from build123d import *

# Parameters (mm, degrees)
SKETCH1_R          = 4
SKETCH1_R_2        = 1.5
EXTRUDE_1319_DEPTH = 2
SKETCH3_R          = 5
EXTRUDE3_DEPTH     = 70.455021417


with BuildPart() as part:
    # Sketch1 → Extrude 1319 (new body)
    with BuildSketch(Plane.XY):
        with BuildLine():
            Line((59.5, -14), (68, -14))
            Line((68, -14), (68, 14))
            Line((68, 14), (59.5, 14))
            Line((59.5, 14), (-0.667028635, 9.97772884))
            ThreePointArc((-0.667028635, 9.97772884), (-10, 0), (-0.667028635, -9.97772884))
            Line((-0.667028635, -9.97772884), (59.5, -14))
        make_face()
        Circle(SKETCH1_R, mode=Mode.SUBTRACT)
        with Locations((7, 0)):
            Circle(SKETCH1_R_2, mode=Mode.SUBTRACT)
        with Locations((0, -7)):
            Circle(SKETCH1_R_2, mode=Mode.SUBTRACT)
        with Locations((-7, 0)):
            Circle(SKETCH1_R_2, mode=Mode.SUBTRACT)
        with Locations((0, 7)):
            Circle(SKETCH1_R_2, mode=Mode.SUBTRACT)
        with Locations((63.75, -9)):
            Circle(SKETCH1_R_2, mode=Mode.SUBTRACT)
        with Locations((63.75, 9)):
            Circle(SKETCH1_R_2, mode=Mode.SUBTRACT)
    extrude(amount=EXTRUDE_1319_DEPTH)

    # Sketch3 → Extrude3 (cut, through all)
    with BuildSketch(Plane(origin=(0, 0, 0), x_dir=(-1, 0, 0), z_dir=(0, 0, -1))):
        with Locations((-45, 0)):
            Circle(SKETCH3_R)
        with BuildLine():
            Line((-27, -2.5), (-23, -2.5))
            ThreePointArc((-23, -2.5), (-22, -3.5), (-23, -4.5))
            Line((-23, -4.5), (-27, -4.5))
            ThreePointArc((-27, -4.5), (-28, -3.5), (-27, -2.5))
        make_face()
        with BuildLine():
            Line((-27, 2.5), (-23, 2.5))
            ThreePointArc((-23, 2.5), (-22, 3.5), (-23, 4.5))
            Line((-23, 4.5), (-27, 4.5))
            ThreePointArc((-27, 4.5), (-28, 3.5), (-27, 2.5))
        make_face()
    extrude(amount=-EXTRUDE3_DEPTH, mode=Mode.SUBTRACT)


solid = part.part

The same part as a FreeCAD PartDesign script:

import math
import FreeCAD as App
import Part
import Sketcher

doc = App.newDocument("Part")
body = doc.addObject("PartDesign::Body", "Body")

sketch1 = body.newObject("Sketcher::SketchObject", "Sketch")
sketch1.AttachmentSupport = (doc.getObject("XY_Plane"), [""])
sketch1.MapMode = "FlatFace"
sketch1.addGeometry(Part.LineSegment(App.Vector(59.5, -14, 0), App.Vector(68, -14, 0)), False)
sketch1.addGeometry(Part.LineSegment(App.Vector(68, -14, 0), App.Vector(68, 14, 0)), False)
sketch1.addGeometry(Part.LineSegment(App.Vector(68, 14, 0), App.Vector(59.5, 14, 0)), False)
sketch1.addGeometry(Part.LineSegment(App.Vector(59.5, 14, 0), App.Vector(-0.667029, 9.977729, 0)), False)
sketch1.addGeometry(Part.ArcOfCircle(Part.Circle(App.Vector(0, 0, 0), App.Vector(0, 0, 1), 10), math.radians(93.824632), math.radians(266.175368)), False)
sketch1.addGeometry(Part.LineSegment(App.Vector(-0.667029, -9.977729, 0), App.Vector(59.5, -14, 0)), False)
sketch1.addGeometry(Part.Circle(App.Vector(0, -7, 0), App.Vector(0, 0, 1), 1.5), False)
sketch1.addGeometry(Part.Circle(App.Vector(63.75, -9, 0), App.Vector(0, 0, 1), 1.5), False)
sketch1.addGeometry(Part.Circle(App.Vector(-7, 0, 0), App.Vector(0, 0, 1), 1.5), False)
sketch1.addGeometry(Part.Circle(App.Vector(0, 0, 0), App.Vector(0, 0, 1), 4), False)
sketch1.addGeometry(Part.Circle(App.Vector(7, 0, 0), App.Vector(0, 0, 1), 1.5), False)
sketch1.addGeometry(Part.Circle(App.Vector(0, 7, 0), App.Vector(0, 0, 1), 1.5), False)
sketch1.addGeometry(Part.Circle(App.Vector(63.75, 9, 0), App.Vector(0, 0, 1), 1.5), False)
sketch1.addConstraint(Sketcher.Constraint("Coincident", 0, 2, 1, 1))
sketch1.addConstraint(Sketcher.Constraint("Coincident", 1, 2, 2, 1))
sketch1.addConstraint(Sketcher.Constraint("Coincident", 2, 2, 3, 1))
sketch1.addConstraint(Sketcher.Constraint("Tangent", 3, 2, 4, 1))
sketch1.addConstraint(Sketcher.Constraint("Tangent", 4, 2, 5, 1))
sketch1.addConstraint(Sketcher.Constraint("Coincident", 5, 2, 0, 1))
sketch1.addConstraint(Sketcher.Constraint("Horizontal", 0))
sketch1.addConstraint(Sketcher.Constraint("Vertical", 1))
sketch1.addConstraint(Sketcher.Constraint("Horizontal", 2))
sketch1.addConstraint(Sketcher.Constraint("Coincident", 4, 3, -1, 1))
sketch1.addConstraint(Sketcher.Constraint("Coincident", 9, 3, -1, 1))
sketch1.addConstraint(Sketcher.Constraint("Equal", 6, 7))
sketch1.addConstraint(Sketcher.Constraint("Equal", 7, 8))
sketch1.addConstraint(Sketcher.Constraint("Equal", 8, 10))
sketch1.addConstraint(Sketcher.Constraint("Equal", 10, 11))
sketch1.addConstraint(Sketcher.Constraint("Equal", 11, 12))
sketch1.addConstraint(Sketcher.Constraint("Symmetric", 8, 3, 10, 3, -1, 1))
sketch1.addConstraint(Sketcher.Constraint("Symmetric", 6, 3, 11, 3, -1, 1))
sketch1.addConstraint(Sketcher.Constraint("Symmetric", 7, 3, 12, 3, -1))
sketch1.addConstraint(Sketcher.Constraint("Symmetric", 2, 2, 5, 2, -1))
sketch1.addConstraint(Sketcher.Constraint("PointOnObject", 6, 3, -2))
sketch1.addConstraint(Sketcher.Constraint("PointOnObject", 8, 3, -1))
sketch1.addConstraint(Sketcher.Constraint("Diameter", 6, 3.0))
sketch1.addConstraint(Sketcher.Constraint("Diameter", 9, 8.0))
sketch1.addConstraint(Sketcher.Constraint("Radius", 4, 10.0))
sketch1.addConstraint(Sketcher.Constraint("DistanceY", 1, 1, 1, 2, 28.0))
sketch1.addConstraint(Sketcher.Constraint("DistanceX", 0, 1, 0, 2, 8.5))
sketch1.addConstraint(Sketcher.Constraint("DistanceY", 6, 3, -1, 1, 7.0))
sketch1.addConstraint(Sketcher.Constraint("DistanceY", 7, 3, -1, 1, 9.0))
sketch1.addConstraint(Sketcher.Constraint("DistanceX", 8, 3, -1, 1, 7.0))
sketch1.addConstraint(Sketcher.Constraint("DistanceX", -1, 1, 0, 2, 68.0))
sketch1.addConstraint(Sketcher.Constraint("DistanceX", -1, 1, 7, 3, 63.75))
pad1 = body.newObject("PartDesign::Pad", "Pad")
pad1.Profile = sketch1
pad1.Length = 2

sketch2 = body.newObject("Sketcher::SketchObject", "Sketch001")
sketch2.AttachmentSupport = (doc.getObject("XY_Plane"), [""])
sketch2.MapMode = "FlatFace"
sketch2.addGeometry(Part.Circle(App.Vector(45, 0, 0), App.Vector(0, 0, 1), 5), False)
sketch2.addGeometry(Part.LineSegment(App.Vector(23, -2.5, 0), App.Vector(27, -2.5, 0)), False)
sketch2.addGeometry(Part.ArcOfCircle(Part.Circle(App.Vector(27, -3.5, 0), App.Vector(0, 0, 1), 1), math.radians(-90), math.radians(90)), False)
sketch2.addGeometry(Part.LineSegment(App.Vector(27, -4.5, 0), App.Vector(23, -4.5, 0)), False)
sketch2.addGeometry(Part.ArcOfCircle(Part.Circle(App.Vector(23, -3.5, 0), App.Vector(0, 0, 1), 1), math.radians(90), math.radians(270)), False)
sketch2.addGeometry(Part.LineSegment(App.Vector(27, 2.5, 0), App.Vector(23, 2.5, 0)), False)
sketch2.addGeometry(Part.ArcOfCircle(Part.Circle(App.Vector(23, 3.5, 0), App.Vector(0, 0, 1), 1), math.radians(90), math.radians(270)), False)
sketch2.addGeometry(Part.LineSegment(App.Vector(23, 4.5, 0), App.Vector(27, 4.5, 0)), False)
sketch2.addGeometry(Part.ArcOfCircle(Part.Circle(App.Vector(27, 3.5, 0), App.Vector(0, 0, 1), 1), math.radians(-90), math.radians(90)), False)
sketch2.addConstraint(Sketcher.Constraint("Tangent", 1, 2, 2, 2))
sketch2.addConstraint(Sketcher.Constraint("Tangent", 2, 1, 3, 1))
sketch2.addConstraint(Sketcher.Constraint("Tangent", 3, 2, 4, 2))
sketch2.addConstraint(Sketcher.Constraint("Tangent", 4, 1, 1, 1))
sketch2.addConstraint(Sketcher.Constraint("Tangent", 5, 2, 6, 2))
sketch2.addConstraint(Sketcher.Constraint("Tangent", 6, 1, 7, 1))
sketch2.addConstraint(Sketcher.Constraint("Tangent", 7, 2, 8, 2))
sketch2.addConstraint(Sketcher.Constraint("Tangent", 8, 1, 5, 1))
sketch2.addConstraint(Sketcher.Constraint("Horizontal", 1))
sketch2.addConstraint(Sketcher.Constraint("Horizontal", 3))
sketch2.addConstraint(Sketcher.Constraint("Horizontal", 5))
sketch2.addConstraint(Sketcher.Constraint("Horizontal", 7))
sketch2.addConstraint(Sketcher.Constraint("Equal", 4, 6))
sketch2.addConstraint(Sketcher.Constraint("Symmetric", 4, 3, 6, 3, -1))
sketch2.addConstraint(Sketcher.Constraint("PointOnObject", 0, 3, -1))
sketch2.addConstraint(Sketcher.Constraint("Vertical", 2, 3, 8, 3))
sketch2.addConstraint(Sketcher.Constraint("Diameter", 0, 10.0))
sketch2.addConstraint(Sketcher.Constraint("Radius", 2, 1.0))
sketch2.addConstraint(Sketcher.Constraint("DistanceX", 1, 1, 1, 2, 4.0))
sketch2.addConstraint(Sketcher.Constraint("DistanceX", -1, 1, 0, 3, 45.0))
sketch2.addConstraint(Sketcher.Constraint("DistanceX", -1, 1, 2, 3, 27.0))
sketch2.addConstraint(Sketcher.Constraint("DistanceY", 4, 3, 6, 3, 7.0))
pocket1 = body.newObject("PartDesign::Pocket", "Pocket")
pocket1.Profile = sketch2
pocket1.Type = "ThroughAll"
pocket1.Reversed = True

doc.recompute()
